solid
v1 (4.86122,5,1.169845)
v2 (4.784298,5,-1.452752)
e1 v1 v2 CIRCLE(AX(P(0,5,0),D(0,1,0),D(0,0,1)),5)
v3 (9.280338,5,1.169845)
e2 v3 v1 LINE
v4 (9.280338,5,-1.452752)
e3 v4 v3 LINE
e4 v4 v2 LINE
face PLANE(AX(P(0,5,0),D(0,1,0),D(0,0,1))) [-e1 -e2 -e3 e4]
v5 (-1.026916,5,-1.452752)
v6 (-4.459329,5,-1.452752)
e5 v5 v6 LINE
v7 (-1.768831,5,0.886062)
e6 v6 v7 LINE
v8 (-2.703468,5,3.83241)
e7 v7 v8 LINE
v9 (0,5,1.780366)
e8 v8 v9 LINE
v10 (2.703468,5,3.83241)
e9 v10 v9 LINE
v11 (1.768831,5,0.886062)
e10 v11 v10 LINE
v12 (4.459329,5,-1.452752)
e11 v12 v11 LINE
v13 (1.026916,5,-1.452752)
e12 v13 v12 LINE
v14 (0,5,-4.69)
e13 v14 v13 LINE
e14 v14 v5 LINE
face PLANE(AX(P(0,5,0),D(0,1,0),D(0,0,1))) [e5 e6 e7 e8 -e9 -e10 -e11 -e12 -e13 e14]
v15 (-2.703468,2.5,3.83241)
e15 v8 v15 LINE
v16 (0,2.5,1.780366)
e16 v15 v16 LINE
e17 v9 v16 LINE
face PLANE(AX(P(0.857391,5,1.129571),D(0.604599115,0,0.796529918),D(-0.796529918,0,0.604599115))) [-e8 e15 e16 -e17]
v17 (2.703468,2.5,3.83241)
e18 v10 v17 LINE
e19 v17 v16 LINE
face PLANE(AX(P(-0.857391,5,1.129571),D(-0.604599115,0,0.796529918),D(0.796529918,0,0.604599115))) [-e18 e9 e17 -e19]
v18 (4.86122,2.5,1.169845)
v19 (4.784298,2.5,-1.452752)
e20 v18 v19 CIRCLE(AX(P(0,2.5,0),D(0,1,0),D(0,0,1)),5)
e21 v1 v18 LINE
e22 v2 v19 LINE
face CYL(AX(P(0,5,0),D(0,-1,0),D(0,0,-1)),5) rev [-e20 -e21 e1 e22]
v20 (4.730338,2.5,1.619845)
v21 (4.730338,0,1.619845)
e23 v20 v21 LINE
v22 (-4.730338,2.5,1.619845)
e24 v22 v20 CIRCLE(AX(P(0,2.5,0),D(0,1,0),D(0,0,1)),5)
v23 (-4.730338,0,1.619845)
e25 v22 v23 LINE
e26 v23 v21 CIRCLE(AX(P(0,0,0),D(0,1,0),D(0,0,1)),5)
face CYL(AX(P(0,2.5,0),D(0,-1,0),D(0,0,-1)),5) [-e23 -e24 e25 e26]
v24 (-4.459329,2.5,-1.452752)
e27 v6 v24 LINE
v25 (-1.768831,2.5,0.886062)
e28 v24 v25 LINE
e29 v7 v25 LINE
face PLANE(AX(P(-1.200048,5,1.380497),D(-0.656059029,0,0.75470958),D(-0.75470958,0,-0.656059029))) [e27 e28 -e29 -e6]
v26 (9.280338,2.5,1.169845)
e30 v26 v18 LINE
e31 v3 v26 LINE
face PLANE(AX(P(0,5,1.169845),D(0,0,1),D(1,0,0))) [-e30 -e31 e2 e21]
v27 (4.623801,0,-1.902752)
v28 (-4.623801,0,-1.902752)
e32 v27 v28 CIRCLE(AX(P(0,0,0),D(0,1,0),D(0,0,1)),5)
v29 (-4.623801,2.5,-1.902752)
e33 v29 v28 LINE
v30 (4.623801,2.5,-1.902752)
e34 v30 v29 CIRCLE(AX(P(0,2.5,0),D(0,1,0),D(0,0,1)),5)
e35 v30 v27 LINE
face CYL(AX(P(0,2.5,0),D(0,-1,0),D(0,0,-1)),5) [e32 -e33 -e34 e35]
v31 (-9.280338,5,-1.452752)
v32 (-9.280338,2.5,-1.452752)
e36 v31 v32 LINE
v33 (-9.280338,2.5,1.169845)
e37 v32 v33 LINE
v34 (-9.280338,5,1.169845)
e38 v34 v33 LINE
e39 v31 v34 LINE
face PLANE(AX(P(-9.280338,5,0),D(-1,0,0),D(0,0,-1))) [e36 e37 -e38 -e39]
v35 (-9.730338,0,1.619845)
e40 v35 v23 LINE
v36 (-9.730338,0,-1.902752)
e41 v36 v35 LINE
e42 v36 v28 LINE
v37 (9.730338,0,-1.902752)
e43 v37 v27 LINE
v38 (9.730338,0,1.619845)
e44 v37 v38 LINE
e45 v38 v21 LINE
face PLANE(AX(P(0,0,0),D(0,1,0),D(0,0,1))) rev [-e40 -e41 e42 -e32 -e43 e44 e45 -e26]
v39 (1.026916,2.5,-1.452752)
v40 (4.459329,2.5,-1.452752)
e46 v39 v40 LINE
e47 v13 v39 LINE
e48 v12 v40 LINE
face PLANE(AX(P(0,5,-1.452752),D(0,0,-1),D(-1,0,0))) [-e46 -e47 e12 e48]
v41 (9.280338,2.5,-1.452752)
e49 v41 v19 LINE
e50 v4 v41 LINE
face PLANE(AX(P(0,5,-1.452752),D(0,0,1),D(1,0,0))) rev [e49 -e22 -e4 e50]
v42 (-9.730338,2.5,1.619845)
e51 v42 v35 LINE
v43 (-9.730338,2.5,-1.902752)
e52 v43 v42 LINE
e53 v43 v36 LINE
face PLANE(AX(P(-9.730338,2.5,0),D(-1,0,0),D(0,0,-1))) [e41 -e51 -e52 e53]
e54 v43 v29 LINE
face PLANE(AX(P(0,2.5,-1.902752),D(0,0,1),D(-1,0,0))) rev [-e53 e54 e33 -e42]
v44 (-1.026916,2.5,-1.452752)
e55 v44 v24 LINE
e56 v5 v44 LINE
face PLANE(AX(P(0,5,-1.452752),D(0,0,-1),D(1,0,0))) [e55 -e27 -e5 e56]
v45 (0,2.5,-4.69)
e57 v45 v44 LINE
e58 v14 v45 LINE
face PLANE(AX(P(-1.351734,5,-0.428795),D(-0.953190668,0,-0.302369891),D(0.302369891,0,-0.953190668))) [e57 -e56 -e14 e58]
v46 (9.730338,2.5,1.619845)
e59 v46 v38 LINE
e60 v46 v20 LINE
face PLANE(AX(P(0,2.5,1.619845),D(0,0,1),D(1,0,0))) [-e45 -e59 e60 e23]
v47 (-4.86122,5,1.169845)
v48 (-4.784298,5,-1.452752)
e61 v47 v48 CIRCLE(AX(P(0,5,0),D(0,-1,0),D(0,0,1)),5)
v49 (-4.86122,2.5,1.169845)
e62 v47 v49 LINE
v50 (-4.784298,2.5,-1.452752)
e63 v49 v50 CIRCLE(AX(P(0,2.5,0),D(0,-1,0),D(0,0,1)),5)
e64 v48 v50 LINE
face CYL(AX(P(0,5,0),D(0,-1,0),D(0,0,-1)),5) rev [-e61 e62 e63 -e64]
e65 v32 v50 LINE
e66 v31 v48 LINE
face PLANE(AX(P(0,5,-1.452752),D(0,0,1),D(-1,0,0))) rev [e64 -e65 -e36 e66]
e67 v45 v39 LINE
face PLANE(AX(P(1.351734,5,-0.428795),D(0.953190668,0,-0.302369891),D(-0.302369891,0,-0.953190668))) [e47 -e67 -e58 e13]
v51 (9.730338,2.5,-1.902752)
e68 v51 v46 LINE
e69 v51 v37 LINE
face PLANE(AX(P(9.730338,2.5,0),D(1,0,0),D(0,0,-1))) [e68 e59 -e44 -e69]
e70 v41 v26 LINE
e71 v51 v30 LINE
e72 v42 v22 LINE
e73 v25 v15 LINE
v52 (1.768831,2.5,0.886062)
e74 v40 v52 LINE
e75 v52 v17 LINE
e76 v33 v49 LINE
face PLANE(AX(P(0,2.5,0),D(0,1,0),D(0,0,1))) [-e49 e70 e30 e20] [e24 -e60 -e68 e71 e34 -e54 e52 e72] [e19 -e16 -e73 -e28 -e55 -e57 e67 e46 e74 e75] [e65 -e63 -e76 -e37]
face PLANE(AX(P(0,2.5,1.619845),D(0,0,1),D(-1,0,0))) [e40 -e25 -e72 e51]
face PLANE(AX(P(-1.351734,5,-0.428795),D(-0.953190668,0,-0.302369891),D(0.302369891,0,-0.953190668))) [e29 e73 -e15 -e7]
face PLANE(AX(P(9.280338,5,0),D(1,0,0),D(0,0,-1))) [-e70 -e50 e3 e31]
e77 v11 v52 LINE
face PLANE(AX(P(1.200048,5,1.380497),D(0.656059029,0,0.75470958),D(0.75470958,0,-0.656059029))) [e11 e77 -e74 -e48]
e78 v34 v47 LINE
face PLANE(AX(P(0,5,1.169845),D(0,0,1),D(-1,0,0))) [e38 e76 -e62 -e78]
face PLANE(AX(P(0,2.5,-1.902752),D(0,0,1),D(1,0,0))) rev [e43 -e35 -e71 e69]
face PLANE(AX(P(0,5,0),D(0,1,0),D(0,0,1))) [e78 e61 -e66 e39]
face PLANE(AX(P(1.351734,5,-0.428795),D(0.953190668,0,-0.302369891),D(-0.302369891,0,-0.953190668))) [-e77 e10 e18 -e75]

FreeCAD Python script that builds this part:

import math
import FreeCAD as App
import Part
import Sketcher
Q = App.Units.Quantity


def add_polygon(sketch, points):
    """Adds a closed chain of lines whose ends are joined by coincident constraints."""
    first, n = sketch.GeometryCount, len(points)
    for a, b in zip(points, points[1:] + points[:1]):
        sketch.addGeometry(Part.LineSegment(App.Vector(*a, 0), App.Vector(*b, 0)), False)
    for i in range(n):
        sketch.addConstraint(Sketcher.Constraint("Coincident", first + i, 2, first + (i + 1) % n, 1))

doc = App.newDocument("Part")
params = doc.addObject("Spreadsheet::Sheet", "Params")
for row, (alias, value) in enumerate([
    ("pad1_length", "5 mm"),
    ("sketch2_radius", "5 mm"),
    ("pad2_length", "5 mm"),
    ("sketch3_radius", "5 mm"),
    ("sketch3_width", "5 mm"),
    ("sketch3_height", "0.31 mm"),
    ("pad3_length", "2.5 mm"),
], start=1):
    params.set(f"A{row}", alias)
    params.set(f"B{row}", "=" + value)
    params.setAlias(f"B{row}", alias)

body = doc.addObject("PartDesign::Body", "Body")

sketch1 = body.newObject("Sketcher::SketchObject", "Sketch")
sketch1.AttachmentSupport = (doc.getObject("XZ_Plane"), [""])
sketch1.MapMode = "FlatFace"
add_polygon(sketch1, [(1, -1.5), (0, -4.7), (0, 1.8), (2.7, 3.8), (1.8, 0.9), (4.5, -1.5)])
sketch1.addConstraint([
    Sketcher.Constraint("Vertical", 1),
    Sketcher.Constraint("Horizontal", 5),
    Sketcher.Constraint("PointOnObject", 0, 2, -2),
    Sketcher.Constraint("Parallel", 0, 3),
    Sketcher.Constraint("Angle", 4, Q("-41 deg")),
    Sketcher.Constraint("Angle", 0, Q("-107.6 deg")),
    Sketcher.Constraint("Angle", 2, Q("37.2 deg")),
    Sketcher.Constraint("DistanceY", 0, 2, -1, 1, Q("4.69 mm")),
    Sketcher.Constraint("DistanceX", 5, 2, 5, 1, Q("3.432413 mm")),
    Sketcher.Constraint("DistanceY", 1, 1, 1, 2, Q("6.470366 mm")),
    Sketcher.Constraint("DistanceY", -1, 1, 2, 2, Q("3.83241 mm")),
    Sketcher.Constraint("DistanceX", -1, 1, 3, 2, Q("1.768831 mm")),
])
pad1 = body.newObject("PartDesign::Pad", "Pad")
pad1.Profile = sketch1
pad1.setExpression("Length", "Params.pad1_length")
pad1.Reversed = True
body2 = doc.addObject("PartDesign::Body", "Body001")

sketch2 = body2.newObject("Sketcher::SketchObject", "Sketch001")
sketch2.AttachmentSupport = (doc.getObject("XZ_Plane001"), [""])
sketch2.MapMode = "FlatFace"
sketch2.addGeometry([
    Part.LineSegment(App.Vector(9.3, -1.5, 0), App.Vector(4.8, -1.5, 0)),
    Part.ArcOfCircle(Part.Circle(App.Vector(0, 0, 0), App.Vector(0, 0, 1), 5), math.radians(-17), math.radians(14)),
    Part.LineSegment(App.Vector(4.9, 1.2, 0), App.Vector(9.3, 1.2, 0)),
    Part.LineSegment(App.Vector(9.3, 1.2, 0), App.Vector(9.3, -1.5, 0)),
], False)
sketch2.addConstraint([
    Sketcher.Constraint("Coincident", 0, 2, 1, 1),
    Sketcher.Constraint("Coincident", 1, 2, 2, 1),
    Sketcher.Constraint("Coincident", 2, 2, 3, 1),
    Sketcher.Constraint("Coincident", 3, 2, 0, 1),
    Sketcher.Constraint("Horizontal", 0),
    Sketcher.Constraint("Horizontal", 2),
    Sketcher.Constraint("Vertical", 3),
    Sketcher.Constraint("Coincident", 1, 3, -1, 1),
    Sketcher.Constraint("Radius", 1, Q("5 mm")),
    Sketcher.Constraint("DistanceX", 0, 2, 0, 1, Q("4.49604 mm")),
    Sketcher.Constraint("DistanceX", 2, 1, 2, 2, Q("4.419118 mm")),
    Sketcher.Constraint("DistanceX", -1, 1, 0, 2, Q("4.784298 mm")),
])
sketch2.setExpression("Constraints[8]", "Params.sketch2_radius")
pad2 = body2.newObject("PartDesign::Pad", "Pad001")
pad2.Profile = sketch2
pad2.setExpression("Length", "Params.pad2_length")
pad2.Reversed = True
body.AllowCompound = True
doc.recompute()

boolean = body.newObject("PartDesign::Boolean", "Boolean")
boolean.Type = "Fuse"
boolean.addObjects([body2])

sketch3 = body.newObject("Sketcher::SketchObject", "Sketch002")
sketch3.AttachmentSupport = (doc.getObject("XZ_Plane"), [""])
sketch3.MapMode = "FlatFace"
sketch3.addGeometry([
    Part.ArcOfCircle(Part.Circle(App.Vector(0, 0, 0), App.Vector(0, 0, 1), 5), math.radians(-90), math.radians(-22)),
    Part.LineSegment(App.Vector(0, -5, 0), App.Vector(0, -4.69, 0)),
    Part.LineSegment(App.Vector(0, -4.69, 0), App.Vector(1.03, -1.45, 0)),
    Part.LineSegment(App.Vector(1.03, -1.45, 0), App.Vector(4.46, -1.45, 0)),
    Part.LineSegment(App.Vector(4.46, -1.45, 0), App.Vector(1.77, 0.89, 0)),
    Part.LineSegment(App.Vector(1.77, 0.89, 0), App.Vector(2.7, 3.83, 0)),
    Part.LineSegment(App.Vector(2.7, 3.83, 0), App.Vector(0, 1.78, 0)),
    Part.LineSegment(App.Vector(0, 1.78, 0), App.Vector(0, 5, 0)),
    Part.ArcOfCircle(Part.Circle(App.Vector(0, 0, 0), App.Vector(0, 0, 1), 5), math.radians(19), math.radians(90)),
    Part.LineSegment(App.Vector(4.73, 1.62, 0), App.Vector(9.73, 1.62, 0)),
    Part.LineSegment(App.Vector(9.73, 1.62, 0), App.Vector(9.73, -1.9, 0)),
    Part.LineSegment(App.Vector(9.73, -1.9, 0), App.Vector(4.62, -1.9, 0)),
    Part.ArcOfCircle(Part.Circle(App.Vector(0, 0, 0), App.Vector(0, 0, 1), 5), math.radians(-17), math.radians(14)),
    Part.LineSegment(App.Vector(4.78, -1.45, 0), App.Vector(9.28, -1.45, 0)),
    Part.LineSegment(App.Vector(9.28, -1.45, 0), App.Vector(9.28, 1.17, 0)),
    Part.LineSegment(App.Vector(9.28, 1.17, 0), App.Vector(4.86, 1.17, 0)),
], False)
sketch3.addConstraint([
    Sketcher.Constraint("Coincident", 0, 1, 1, 1),
    Sketcher.Constraint("Coincident", 1, 2, 2, 1),
    Sketcher.Constraint("Coincident", 2, 2, 3, 1),
    Sketcher.Constraint("Coincident", 3, 2, 4, 1),
    Sketcher.Constraint("Coincident", 4, 2, 5, 1),
    Sketcher.Constraint("Coincident", 5, 2, 6, 1),
    Sketcher.Constraint("Coincident", 6, 2, 7, 1),
    Sketcher.Constraint("Coincident", 7, 2, 8, 2),
    Sketcher.Constraint("Coincident", 8, 1, 9, 1),
    Sketcher.Constraint("Coincident", 9, 2, 10, 1),
    Sketcher.Constraint("Coincident", 10, 2, 11, 1),
    Sketcher.Constraint("Coincident", 11, 2, 0, 2),
    Sketcher.Constraint("Coincident", 12, 1, 13, 1),
    Sketcher.Constraint("Coincident", 13, 2, 14, 1),
    Sketcher.Constraint("Coincident", 14, 2, 15, 1),
    Sketcher.Constraint("Coincident", 15, 2, 12, 2),
    Sketcher.Constraint("Vertical", 1),
    Sketcher.Constraint("Horizontal", 3),
    Sketcher.Constraint("Vertical", 7),
    Sketcher.Constraint("Horizontal", 9),
    Sketcher.Constraint("Vertical", 10),
    Sketcher.Constraint("Horizontal", 11),
    Sketcher.Constraint("Horizontal", 13),
    Sketcher.Constraint("Vertical", 14),
    Sketcher.Constraint("Horizontal", 15),
    Sketcher.Constraint("Coincident", 0, 3, -1, 1),
    Sketcher.Constraint("Coincident", 8, 3, -1, 1),
    Sketcher.Constraint("Coincident", 12, 3, -1, 1),
    Sketcher.Constraint("Equal", 0, 8),
    Sketcher.Constraint("Equal", 8, 12),
    Sketcher.Constraint("PointOnObject", 0, 1, -2),
    Sketcher.Constraint("PointOnObject", 6, 2, -2),
    Sketcher.Constraint("Parallel", 2, 5),
    Sketcher.Constraint("Horizontal", 3, 2, 12, 1),
    Sketcher.Constraint("Radius", 0, Q("5 mm")),
    Sketcher.Constraint("DistanceX", 9, 1, 9, 2, Q("5 mm")),
    Sketcher.Constraint("Angle", 4, Q("139 deg")),
    Sketcher.Constraint("Angle", 2, Q("72.4 deg")),
    Sketcher.Constraint("Angle", 6, Q("-142.8 deg")),
    Sketcher.Constraint("DistanceY", 1, 1, 1, 2, Q("0.31 mm")),
    Sketcher.Constraint("DistanceY", 10, 2, 3, 2, Q("0.45 mm")),
    Sketcher.Constraint("DistanceX", 13, 2, 10, 2, Q("0.45 mm")),
    Sketcher.Constraint("DistanceY", 14, 2, 9, 2, Q("0.45 mm")),
    Sketcher.Constraint("DistanceX", 13, 1, 13, 2, Q("4.49604 mm")),
    Sketcher.Constraint("DistanceX", 15, 2, 15, 1, Q("4.419118 mm")),
    Sketcher.Constraint("DistanceX", 3, 1, 3, 2, Q("3.432413 mm")),
    Sketcher.Constraint("DistanceY", 7, 1, 7, 2, Q("3.219634 mm")),
    Sketcher.Constraint("DistanceX", -1, 1, 4, 2, Q("1.768831 mm")),
])
sketch3.setExpression("Constraints[34]", "Params.sketch3_radius")
sketch3.setExpression("Constraints[35]", "Params.sketch3_width")
sketch3.setExpression("Constraints[39]", "Params.sketch3_height")
pad3 = body.newObject("PartDesign::Pad", "Pad002")
pad3.Profile = sketch3
pad3.setExpression("Length", "Params.pad3_length")
pad3.Reversed = True
body3 = doc.addObject("PartDesign::Body", "Body002")
doc.recompute()

body3.BaseFeature = body
doc.recompute()

mirroring = doc.addObject("Part::Mirroring", "Mirroring")
mirroring.Source = body
mirroring.Base = App.Vector(0, 0, 0)
mirroring.Normal = App.Vector(1, 0, 0)
body4 = doc.addObject("PartDesign::Body", "Body003")
body4.BaseFeature = mirroring
boolean2 = body3.newObject("PartDesign::Boolean", "Boolean001")
boolean2.Type = "Fuse"
boolean2.addObjects([body4])
doc.recompute()
mirroring.Visibility = False

doc.recompute()
